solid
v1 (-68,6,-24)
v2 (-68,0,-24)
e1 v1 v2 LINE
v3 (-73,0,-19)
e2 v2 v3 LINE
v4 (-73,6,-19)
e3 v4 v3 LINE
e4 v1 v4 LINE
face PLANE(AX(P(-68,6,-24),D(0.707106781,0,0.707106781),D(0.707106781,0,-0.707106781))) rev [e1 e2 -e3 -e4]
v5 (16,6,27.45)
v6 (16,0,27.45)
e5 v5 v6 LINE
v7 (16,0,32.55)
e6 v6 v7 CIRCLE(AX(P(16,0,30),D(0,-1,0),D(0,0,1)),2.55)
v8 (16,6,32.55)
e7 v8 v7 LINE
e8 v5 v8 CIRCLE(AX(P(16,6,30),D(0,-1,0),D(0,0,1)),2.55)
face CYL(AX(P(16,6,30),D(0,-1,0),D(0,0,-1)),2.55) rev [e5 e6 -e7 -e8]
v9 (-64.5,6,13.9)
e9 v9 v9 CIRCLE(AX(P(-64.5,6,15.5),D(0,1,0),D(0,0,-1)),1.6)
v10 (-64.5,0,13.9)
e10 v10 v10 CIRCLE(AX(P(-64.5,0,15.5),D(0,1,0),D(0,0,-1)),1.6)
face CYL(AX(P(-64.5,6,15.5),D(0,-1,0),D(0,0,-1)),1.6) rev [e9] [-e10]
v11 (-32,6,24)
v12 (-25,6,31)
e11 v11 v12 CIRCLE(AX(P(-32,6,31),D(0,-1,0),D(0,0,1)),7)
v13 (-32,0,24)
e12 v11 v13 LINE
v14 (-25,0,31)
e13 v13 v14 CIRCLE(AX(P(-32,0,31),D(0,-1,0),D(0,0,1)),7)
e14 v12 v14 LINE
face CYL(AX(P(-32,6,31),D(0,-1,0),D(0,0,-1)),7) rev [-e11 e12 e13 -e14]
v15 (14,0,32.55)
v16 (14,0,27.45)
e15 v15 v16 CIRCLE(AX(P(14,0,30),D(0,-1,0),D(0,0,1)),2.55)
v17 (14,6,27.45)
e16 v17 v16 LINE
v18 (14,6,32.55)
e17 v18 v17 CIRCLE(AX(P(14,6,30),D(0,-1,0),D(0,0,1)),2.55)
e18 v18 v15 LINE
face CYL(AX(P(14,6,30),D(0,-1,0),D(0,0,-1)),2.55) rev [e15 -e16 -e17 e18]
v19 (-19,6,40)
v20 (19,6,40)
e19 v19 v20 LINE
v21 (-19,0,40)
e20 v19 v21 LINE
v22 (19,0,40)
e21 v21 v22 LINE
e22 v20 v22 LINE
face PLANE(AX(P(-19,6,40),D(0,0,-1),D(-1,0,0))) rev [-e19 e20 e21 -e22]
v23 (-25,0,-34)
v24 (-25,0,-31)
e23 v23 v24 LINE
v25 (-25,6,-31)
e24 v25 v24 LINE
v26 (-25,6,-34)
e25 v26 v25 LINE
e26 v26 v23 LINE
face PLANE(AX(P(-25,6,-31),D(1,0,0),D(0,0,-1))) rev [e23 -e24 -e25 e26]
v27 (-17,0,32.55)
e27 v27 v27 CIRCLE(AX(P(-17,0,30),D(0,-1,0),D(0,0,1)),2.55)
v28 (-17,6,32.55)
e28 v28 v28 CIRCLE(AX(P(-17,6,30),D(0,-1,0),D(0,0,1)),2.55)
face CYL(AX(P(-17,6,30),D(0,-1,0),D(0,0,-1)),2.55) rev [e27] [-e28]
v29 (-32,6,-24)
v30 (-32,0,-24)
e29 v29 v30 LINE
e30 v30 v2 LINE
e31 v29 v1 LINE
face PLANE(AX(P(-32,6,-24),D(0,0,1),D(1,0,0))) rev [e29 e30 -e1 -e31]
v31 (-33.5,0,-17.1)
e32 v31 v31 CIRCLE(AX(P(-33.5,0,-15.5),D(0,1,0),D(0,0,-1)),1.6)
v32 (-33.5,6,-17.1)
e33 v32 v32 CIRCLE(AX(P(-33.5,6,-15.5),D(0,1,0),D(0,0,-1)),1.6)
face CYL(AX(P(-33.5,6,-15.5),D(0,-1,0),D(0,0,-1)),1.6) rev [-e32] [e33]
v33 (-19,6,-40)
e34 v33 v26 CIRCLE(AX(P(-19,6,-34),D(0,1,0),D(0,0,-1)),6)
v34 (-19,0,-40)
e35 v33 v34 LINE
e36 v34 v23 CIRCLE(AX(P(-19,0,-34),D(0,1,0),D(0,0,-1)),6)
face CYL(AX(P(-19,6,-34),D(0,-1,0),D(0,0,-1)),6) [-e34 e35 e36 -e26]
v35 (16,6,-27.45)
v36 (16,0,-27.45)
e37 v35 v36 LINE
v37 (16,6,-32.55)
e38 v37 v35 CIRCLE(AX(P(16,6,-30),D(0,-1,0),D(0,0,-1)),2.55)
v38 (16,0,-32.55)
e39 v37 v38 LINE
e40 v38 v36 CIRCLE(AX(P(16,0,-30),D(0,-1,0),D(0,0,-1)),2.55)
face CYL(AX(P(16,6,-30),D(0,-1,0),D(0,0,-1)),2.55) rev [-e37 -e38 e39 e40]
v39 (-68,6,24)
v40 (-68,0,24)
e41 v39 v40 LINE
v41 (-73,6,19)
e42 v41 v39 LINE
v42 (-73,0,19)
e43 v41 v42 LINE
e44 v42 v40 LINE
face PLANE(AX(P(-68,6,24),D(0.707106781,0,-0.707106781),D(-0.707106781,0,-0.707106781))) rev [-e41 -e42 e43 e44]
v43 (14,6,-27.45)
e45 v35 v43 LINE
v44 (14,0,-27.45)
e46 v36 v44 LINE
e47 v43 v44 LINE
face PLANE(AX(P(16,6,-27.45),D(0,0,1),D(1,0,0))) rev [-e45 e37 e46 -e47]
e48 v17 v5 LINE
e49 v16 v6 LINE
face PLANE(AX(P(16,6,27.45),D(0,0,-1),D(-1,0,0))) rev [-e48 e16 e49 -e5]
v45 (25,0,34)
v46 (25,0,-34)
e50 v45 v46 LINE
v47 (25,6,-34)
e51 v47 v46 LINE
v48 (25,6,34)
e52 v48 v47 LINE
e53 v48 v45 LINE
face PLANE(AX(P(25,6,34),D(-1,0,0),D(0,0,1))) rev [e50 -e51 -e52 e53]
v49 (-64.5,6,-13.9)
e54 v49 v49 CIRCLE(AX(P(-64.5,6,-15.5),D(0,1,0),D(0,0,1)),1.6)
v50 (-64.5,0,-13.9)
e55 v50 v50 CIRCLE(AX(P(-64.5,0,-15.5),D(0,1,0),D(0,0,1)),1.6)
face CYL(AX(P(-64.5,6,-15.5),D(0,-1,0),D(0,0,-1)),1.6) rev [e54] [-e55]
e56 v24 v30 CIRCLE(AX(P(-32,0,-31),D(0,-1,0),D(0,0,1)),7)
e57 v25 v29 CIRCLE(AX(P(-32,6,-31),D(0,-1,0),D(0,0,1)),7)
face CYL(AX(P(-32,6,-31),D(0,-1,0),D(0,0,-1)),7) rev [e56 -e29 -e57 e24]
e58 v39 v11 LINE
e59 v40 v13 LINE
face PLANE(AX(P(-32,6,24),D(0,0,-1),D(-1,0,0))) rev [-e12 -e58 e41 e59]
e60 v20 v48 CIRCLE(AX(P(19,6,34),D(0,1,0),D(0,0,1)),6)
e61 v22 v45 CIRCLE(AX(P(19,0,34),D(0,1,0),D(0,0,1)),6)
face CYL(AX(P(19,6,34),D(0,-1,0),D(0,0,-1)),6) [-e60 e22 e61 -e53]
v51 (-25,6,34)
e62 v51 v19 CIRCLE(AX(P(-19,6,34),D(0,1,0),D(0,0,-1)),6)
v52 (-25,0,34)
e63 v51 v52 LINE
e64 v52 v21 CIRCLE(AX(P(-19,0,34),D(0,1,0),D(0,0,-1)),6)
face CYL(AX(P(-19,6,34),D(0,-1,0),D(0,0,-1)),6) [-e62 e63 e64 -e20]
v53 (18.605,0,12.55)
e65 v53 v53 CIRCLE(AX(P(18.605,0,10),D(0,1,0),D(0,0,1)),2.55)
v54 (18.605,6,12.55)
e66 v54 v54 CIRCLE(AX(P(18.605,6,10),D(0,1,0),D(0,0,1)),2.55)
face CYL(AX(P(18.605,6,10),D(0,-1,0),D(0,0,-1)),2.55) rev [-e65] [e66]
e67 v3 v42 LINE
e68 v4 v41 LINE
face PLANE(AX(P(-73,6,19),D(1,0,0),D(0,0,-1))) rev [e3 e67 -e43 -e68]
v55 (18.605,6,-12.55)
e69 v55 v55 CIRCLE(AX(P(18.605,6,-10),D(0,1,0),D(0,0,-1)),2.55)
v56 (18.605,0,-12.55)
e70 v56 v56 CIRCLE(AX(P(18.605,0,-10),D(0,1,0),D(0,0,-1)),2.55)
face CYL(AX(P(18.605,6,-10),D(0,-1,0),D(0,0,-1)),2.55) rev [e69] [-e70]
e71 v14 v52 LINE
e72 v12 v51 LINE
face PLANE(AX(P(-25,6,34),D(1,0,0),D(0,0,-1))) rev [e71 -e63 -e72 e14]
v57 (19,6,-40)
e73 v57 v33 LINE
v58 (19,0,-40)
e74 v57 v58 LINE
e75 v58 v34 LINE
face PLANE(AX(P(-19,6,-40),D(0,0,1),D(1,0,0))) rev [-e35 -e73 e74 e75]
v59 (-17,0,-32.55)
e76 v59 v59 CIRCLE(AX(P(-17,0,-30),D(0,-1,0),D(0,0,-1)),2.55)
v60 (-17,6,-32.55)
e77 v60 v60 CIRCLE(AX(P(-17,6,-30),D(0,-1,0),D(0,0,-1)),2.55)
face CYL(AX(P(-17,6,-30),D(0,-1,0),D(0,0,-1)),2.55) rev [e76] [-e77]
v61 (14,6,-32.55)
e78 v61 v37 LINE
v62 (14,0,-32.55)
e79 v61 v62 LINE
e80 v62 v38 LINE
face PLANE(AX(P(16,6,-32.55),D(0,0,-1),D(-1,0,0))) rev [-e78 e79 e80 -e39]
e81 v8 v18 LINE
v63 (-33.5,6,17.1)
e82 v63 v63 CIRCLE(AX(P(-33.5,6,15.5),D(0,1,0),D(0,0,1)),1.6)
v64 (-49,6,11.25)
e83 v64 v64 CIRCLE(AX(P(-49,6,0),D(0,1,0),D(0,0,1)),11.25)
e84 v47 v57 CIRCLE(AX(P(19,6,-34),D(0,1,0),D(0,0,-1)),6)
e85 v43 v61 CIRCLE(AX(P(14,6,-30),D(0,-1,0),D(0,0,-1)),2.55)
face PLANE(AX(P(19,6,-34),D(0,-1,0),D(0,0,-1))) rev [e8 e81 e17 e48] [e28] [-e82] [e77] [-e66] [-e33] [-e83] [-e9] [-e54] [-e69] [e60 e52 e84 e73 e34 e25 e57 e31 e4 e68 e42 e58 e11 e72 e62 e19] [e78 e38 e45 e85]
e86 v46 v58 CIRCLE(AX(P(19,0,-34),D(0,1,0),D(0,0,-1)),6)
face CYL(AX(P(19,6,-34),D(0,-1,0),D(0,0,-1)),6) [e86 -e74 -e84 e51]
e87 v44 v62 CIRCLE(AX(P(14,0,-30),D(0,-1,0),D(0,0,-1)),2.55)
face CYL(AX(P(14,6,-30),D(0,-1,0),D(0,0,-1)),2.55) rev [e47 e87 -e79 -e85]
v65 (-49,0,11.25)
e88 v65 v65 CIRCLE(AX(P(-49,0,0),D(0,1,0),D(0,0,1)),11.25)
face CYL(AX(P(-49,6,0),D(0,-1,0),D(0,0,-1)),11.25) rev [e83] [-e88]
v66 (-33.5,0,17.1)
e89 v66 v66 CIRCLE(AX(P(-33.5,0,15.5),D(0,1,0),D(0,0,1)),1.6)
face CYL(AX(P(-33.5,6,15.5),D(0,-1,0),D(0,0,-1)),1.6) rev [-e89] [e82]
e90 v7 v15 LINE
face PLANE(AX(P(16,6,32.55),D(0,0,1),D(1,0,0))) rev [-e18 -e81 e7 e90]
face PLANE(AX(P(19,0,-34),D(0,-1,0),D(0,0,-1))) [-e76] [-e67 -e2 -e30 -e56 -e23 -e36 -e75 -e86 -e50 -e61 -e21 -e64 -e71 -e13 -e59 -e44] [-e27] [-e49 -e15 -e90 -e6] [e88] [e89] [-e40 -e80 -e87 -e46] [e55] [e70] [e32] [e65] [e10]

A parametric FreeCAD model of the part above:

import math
import FreeCAD as App
import Part
import Sketcher
from FreeCAD import Vector

doc = App.newDocument("Part")
body = doc.addObject("PartDesign::Body", "Body")

sketch1 = doc.addObject("Sketcher::SketchObject", "Sketch")
body.addObject(sketch1)
sketch1.AttachmentSupport = (doc.XZ_Plane, [""])
sketch1.MapMode = "FlatFace"
sketch1.addGeometry(Part.LineSegment(Vector(-68, 24, 0), Vector(-32, 24, 0)), False)
sketch1.addGeometry(Part.ArcOfCircle(Part.Circle(Vector(-32, 31, 0), Vector(0, 0, 1), 7), math.radians(-90), math.radians(0)), False)
sketch1.addGeometry(Part.LineSegment(Vector(-25, 31, 0), Vector(-25, 34, 0)), False)
sketch1.addGeometry(Part.ArcOfCircle(Part.Circle(Vector(-19, 34, 0), Vector(0, 0, 1), 6), math.radians(90), math.radians(180)), False)
sketch1.addGeometry(Part.LineSegment(Vector(-19, 40, 0), Vector(19, 40, 0)), False)
sketch1.addGeometry(Part.ArcOfCircle(Part.Circle(Vector(19, 34, 0), Vector(0, 0, 1), 6), math.radians(0), math.radians(90)), False)
sketch1.addGeometry(Part.LineSegment(Vector(25, 34, 0), Vector(25, -34, 0)), False)
sketch1.addGeometry(Part.ArcOfCircle(Part.Circle(Vector(19, -34, 0), Vector(0, 0, 1), 6), math.radians(-90), math.radians(0)), False)
sketch1.addGeometry(Part.LineSegment(Vector(19, -40, 0), Vector(-19, -40, 0)), False)
sketch1.addGeometry(Part.ArcOfCircle(Part.Circle(Vector(-19, -34, 0), Vector(0, 0, 1), 6), math.radians(180), math.radians(270)), False)
sketch1.addGeometry(Part.LineSegment(Vector(-25, -34, 0), Vector(-25, -31, 0)), False)
sketch1.addGeometry(Part.ArcOfCircle(Part.Circle(Vector(-32, -31, 0), Vector(0, 0, 1), 7), math.radians(0), math.radians(90)), False)
sketch1.addGeometry(Part.LineSegment(Vector(-32, -24, 0), Vector(-68, -24, 0)), False)
sketch1.addGeometry(Part.LineSegment(Vector(-68, -24, 0), Vector(-73, -19, 0)), False)
sketch1.addGeometry(Part.LineSegment(Vector(-73, -19, 0), Vector(-73, 19, 0)), False)
sketch1.addGeometry(Part.LineSegment(Vector(-73, 19, 0), Vector(-68, 24, 0)), False)
sketch1.addGeometry(Part.Circle(Vector(18.605, 10, 0), Vector(0, 0, 1), 2.55), False)
sketch1.addGeometry(Part.Circle(Vector(-33.5, 15.5, 0), Vector(0, 0, 1), 1.6), False)
sketch1.addGeometry(Part.Circle(Vector(-64.5, 15.5, 0), Vector(0, 0, 1), 1.6), False)
sketch1.addGeometry(Part.Circle(Vector(18.605, -10, 0), Vector(0, 0, 1), 2.55), False)
sketch1.addGeometry(Part.Circle(Vector(-49, 0, 0), Vector(0, 0, 1), 11.25), False)
sketch1.addGeometry(Part.Circle(Vector(-33.5, -15.5, 0), Vector(0, 0, 1), 1.6), False)
sketch1.addGeometry(Part.Circle(Vector(-64.5, -15.5, 0), Vector(0, 0, 1), 1.6), False)
sketch1.addConstraint(Sketcher.Constraint("Tangent", 0, 2, 1, 1))
sketch1.addConstraint(Sketcher.Constraint("Tangent", 1, 2, 2, 1))
sketch1.addConstraint(Sketcher.Constraint("Tangent", 2, 2, 3, 2))
sketch1.addConstraint(Sketcher.Constraint("Tangent", 3, 1, 4, 1))
sketch1.addConstraint(Sketcher.Constraint("Tangent", 4, 2, 5, 2))
sketch1.addConstraint(Sketcher.Constraint("Tangent", 5, 1, 6, 1))
sketch1.addConstraint(Sketcher.Constraint("Tangent", 6, 2, 7, 2))
sketch1.addConstraint(Sketcher.Constraint("Tangent", 7, 1, 8, 1))
sketch1.addConstraint(Sketcher.Constraint("Tangent", 8, 2, 9, 2))
sketch1.addConstraint(Sketcher.Constraint("Tangent", 9, 1, 10, 1))
sketch1.addConstraint(Sketcher.Constraint("Tangent", 10, 2, 11, 1))
sketch1.addConstraint(Sketcher.Constraint("Tangent", 11, 2, 12, 1))
sketch1.addConstraint(Sketcher.Constraint("Coincident", 12, 2, 13, 1))
sketch1.addConstraint(Sketcher.Constraint("Coincident", 13, 2, 14, 1))
sketch1.addConstraint(Sketcher.Constraint("Coincident", 14, 2, 15, 1))
sketch1.addConstraint(Sketcher.Constraint("Coincident", 15, 2, 0, 1))
sketch1.addConstraint(Sketcher.Constraint("Horizontal", 0))
sketch1.addConstraint(Sketcher.Constraint("Vertical", 2))
sketch1.addConstraint(Sketcher.Constraint("Horizontal", 4))
sketch1.addConstraint(Sketcher.Constraint("Vertical", 6))
sketch1.addConstraint(Sketcher.Constraint("Horizontal", 8))
sketch1.addConstraint(Sketcher.Constraint("Vertical", 10))
sketch1.addConstraint(Sketcher.Constraint("Horizontal", 12))
sketch1.addConstraint(Sketcher.Constraint("Vertical", 14))
sketch1.addConstraint(Sketcher.Constraint("Equal", 3, 5))
sketch1.addConstraint(Sketcher.Constraint("Equal", 5, 7))
sketch1.addConstraint(Sketcher.Constraint("Equal", 7, 9))
sketch1.addConstraint(Sketcher.Constraint("Equal", 1, 11))
sketch1.addConstraint(Sketcher.Constraint("Equal", 17, 18))
sketch1.addConstraint(Sketcher.Constraint("Equal", 16, 19))
sketch1.addConstraint(Sketcher.Constraint("Equal", 18, 21))
sketch1.addConstraint(Sketcher.Constraint("Equal", 21, 22))
sketch1.addConstraint(Sketcher.Constraint("Symmetric", 3, 3, 7, 3, -1, 1))
sketch1.addConstraint(Sketcher.Constraint("Symmetric", 1, 3, 11, 3, -1))
sketch1.addConstraint(Sketcher.Constraint("Symmetric", 16, 3, 19, 3, -1))
sketch1.addConstraint(Sketcher.Constraint("Symmetric", 17, 3, 21, 3, -1))
sketch1.addConstraint(Sketcher.Constraint("Symmetric", 18, 3, 22, 3, -1))
sketch1.addConstraint(Sketcher.Constraint("PointOnObject", 20, 3, -1))
sketch1.addConstraint(Sketcher.Constraint("Perpendicular", 13, 15))
sketch1.addConstraint(Sketcher.Constraint("Horizontal", 17, 3, 18, 3))
sketch1.addConstraint(Sketcher.Constraint("Vertical", 12, 2, 15, 2))
sketch1.addConstraint(Sketcher.Constraint("Equal", 8, 14))
sketch1.addConstraint(Sketcher.Constraint("Equal", 13, 15))
sketch1.addConstraint(Sketcher.Constraint("Radius", 1, 7.0))
sketch1.addConstraint(Sketcher.Constraint("Radius", 3, 6.0))
sketch1.addConstraint(Sketcher.Constraint("Diameter", 16, 5.1))
sketch1.addConstraint(Sketcher.Constraint("Diameter", 17, 3.2))
sketch1.addConstraint(Sketcher.Constraint("Diameter", 20, 22.5))
sketch1.addConstraint(Sketcher.Constraint("DistanceX", 0, 1, 0, 2, 36.0))
sketch1.addConstraint(Sketcher.Constraint("DistanceX", 4, 1, 4, 2, 38.0))
sketch1.addConstraint(Sketcher.Constraint("DistanceY", 2, 1, 2, 2, 3.0))
sketch1.addConstraint(Sketcher.Constraint("DistanceY", 6, 2, 6, 1, 68.0))
sketch1.addConstraint(Sketcher.Constraint("DistanceY", -1, 1, 16, 3, 10.0))
sketch1.addConstraint(Sketcher.Constraint("DistanceX", 20, 3, -1, 1, 49.0))
sketch1.addConstraint(Sketcher.Constraint("DistanceX", 18, 3, 17, 3, 31.0))
sketch1.addConstraint(Sketcher.Constraint("DistanceY", 21, 3, 17, 3, 31.0))
sketch1.addConstraint(Sketcher.Constraint("DistanceX", 17, 3, -1, 1, 33.5))
sketch1.addConstraint(Sketcher.Constraint("DistanceX", -1, 1, 16, 3, 18.605))
pad1 = doc.addObject("PartDesign::Pad", "Pad")
body.addObject(pad1)
pad1.Profile = sketch1
pad1.Length = 6
pad1.Reversed = True

sketch2 = doc.addObject("Sketcher::SketchObject", "Sketch001")
body.addObject(sketch2)
sketch2.AttachmentSupport = (doc.XZ_Plane, [""])
sketch2.MapMode = "FlatFace"
sketch2.addGeometry(Part.Circle(Vector(-17, -30, 0), Vector(0, 0, 1), 2.55), False)
sketch2.addGeometry(Part.Circle(Vector(-17, 30, 0), Vector(0, 0, 1), 2.55), False)
sketch2.addGeometry(Part.LineSegment(Vector(14, -32.55, 0), Vector(16, -32.55, 0)), False)
sketch2.addGeometry(Part.ArcOfCircle(Part.Circle(Vector(16, -30, 0), Vector(0, 0, 1), 2.55), math.radians(-90), math.radians(90)), False)
sketch2.addGeometry(Part.LineSegment(Vector(16, -27.45, 0), Vector(14, -27.45, 0)), False)
sketch2.addGeometry(Part.ArcOfCircle(Part.Circle(Vector(14, -30, 0), Vector(0, 0, 1), 2.55), math.radians(90), math.radians(270)), False)
sketch2.addGeometry(Part.LineSegment(Vector(16, 32.55, 0), Vector(14, 32.55, 0)), False)
sketch2.addGeometry(Part.ArcOfCircle(Part.Circle(Vector(14, 30, 0), Vector(0, 0, 1), 2.55), math.radians(90), math.radians(270)), False)
sketch2.addGeometry(Part.LineSegment(Vector(14, 27.45, 0), Vector(16, 27.45, 0)), False)
sketch2.addGeometry(Part.ArcOfCircle(Part.Circle(Vector(16, 30, 0), Vector(0, 0, 1), 2.55), math.radians(-90), math.radians(90)), False)
sketch2.addConstraint(Sketcher.Constraint("Tangent", 2, 2, 3, 1))
sketch2.addConstraint(Sketcher.Constraint("Tangent", 3, 2, 4, 1))
sketch2.addConstraint(Sketcher.Constraint("Tangent", 4, 2, 5, 1))
sketch2.addConstraint(Sketcher.Constraint("Tangent", 5, 2, 2, 1))
sketch2.addConstraint(Sketcher.Constraint("Tangent", 6, 2, 7, 1))
sketch2.addConstraint(Sketcher.Constraint("Tangent", 7, 2, 8, 1))
sketch2.addConstraint(Sketcher.Constraint("Tangent", 8, 2, 9, 1))
sketch2.addConstraint(Sketcher.Constraint("Tangent", 9, 2, 6, 1))
sketch2.addConstraint(Sketcher.Constraint("Horizontal", 2))
sketch2.addConstraint(Sketcher.Constraint("Horizontal", 4))
sketch2.addConstraint(Sketcher.Constraint("Horizontal", 6))
sketch2.addConstraint(Sketcher.Constraint("Horizontal", 8))
sketch2.addConstraint(Sketcher.Constraint("Equal", 0, 1))
sketch2.addConstraint(Sketcher.Constraint("Equal", 1, 3))
sketch2.addConstraint(Sketcher.Constraint("Equal", 5, 7))
sketch2.addConstraint(Sketcher.Constraint("Symmetric", 0, 3, 1, 3, -1))
sketch2.addConstraint(Sketcher.Constraint("Symmetric", 5, 3, 7, 3, -1))
sketch2.addConstraint(Sketcher.Constraint("Horizontal", 0, 3, 3, 3))
sketch2.addConstraint(Sketcher.Constraint("Vertical", 3, 3, 9, 3))
sketch2.addConstraint(Sketcher.Constraint("Diameter", 0, 5.1))
sketch2.addConstraint(Sketcher.Constraint("DistanceX", 2, 1, 2, 2, 2.0))
sketch2.addConstraint(Sketcher.Constraint("DistanceX", 0, 3, -1, 1, 17.0))
sketch2.addConstraint(Sketcher.Constraint("DistanceY", 0, 3, -1, 1, 30.0))
sketch2.addConstraint(Sketcher.Constraint("DistanceX", -1, 1, 3, 3, 16.0))
pocket1 = doc.addObject("PartDesign::Pocket", "Pocket")
body.addObject(pocket1)
pocket1.Profile = sketch2
pocket1.Type = "ThroughAll"

doc.recompute()
